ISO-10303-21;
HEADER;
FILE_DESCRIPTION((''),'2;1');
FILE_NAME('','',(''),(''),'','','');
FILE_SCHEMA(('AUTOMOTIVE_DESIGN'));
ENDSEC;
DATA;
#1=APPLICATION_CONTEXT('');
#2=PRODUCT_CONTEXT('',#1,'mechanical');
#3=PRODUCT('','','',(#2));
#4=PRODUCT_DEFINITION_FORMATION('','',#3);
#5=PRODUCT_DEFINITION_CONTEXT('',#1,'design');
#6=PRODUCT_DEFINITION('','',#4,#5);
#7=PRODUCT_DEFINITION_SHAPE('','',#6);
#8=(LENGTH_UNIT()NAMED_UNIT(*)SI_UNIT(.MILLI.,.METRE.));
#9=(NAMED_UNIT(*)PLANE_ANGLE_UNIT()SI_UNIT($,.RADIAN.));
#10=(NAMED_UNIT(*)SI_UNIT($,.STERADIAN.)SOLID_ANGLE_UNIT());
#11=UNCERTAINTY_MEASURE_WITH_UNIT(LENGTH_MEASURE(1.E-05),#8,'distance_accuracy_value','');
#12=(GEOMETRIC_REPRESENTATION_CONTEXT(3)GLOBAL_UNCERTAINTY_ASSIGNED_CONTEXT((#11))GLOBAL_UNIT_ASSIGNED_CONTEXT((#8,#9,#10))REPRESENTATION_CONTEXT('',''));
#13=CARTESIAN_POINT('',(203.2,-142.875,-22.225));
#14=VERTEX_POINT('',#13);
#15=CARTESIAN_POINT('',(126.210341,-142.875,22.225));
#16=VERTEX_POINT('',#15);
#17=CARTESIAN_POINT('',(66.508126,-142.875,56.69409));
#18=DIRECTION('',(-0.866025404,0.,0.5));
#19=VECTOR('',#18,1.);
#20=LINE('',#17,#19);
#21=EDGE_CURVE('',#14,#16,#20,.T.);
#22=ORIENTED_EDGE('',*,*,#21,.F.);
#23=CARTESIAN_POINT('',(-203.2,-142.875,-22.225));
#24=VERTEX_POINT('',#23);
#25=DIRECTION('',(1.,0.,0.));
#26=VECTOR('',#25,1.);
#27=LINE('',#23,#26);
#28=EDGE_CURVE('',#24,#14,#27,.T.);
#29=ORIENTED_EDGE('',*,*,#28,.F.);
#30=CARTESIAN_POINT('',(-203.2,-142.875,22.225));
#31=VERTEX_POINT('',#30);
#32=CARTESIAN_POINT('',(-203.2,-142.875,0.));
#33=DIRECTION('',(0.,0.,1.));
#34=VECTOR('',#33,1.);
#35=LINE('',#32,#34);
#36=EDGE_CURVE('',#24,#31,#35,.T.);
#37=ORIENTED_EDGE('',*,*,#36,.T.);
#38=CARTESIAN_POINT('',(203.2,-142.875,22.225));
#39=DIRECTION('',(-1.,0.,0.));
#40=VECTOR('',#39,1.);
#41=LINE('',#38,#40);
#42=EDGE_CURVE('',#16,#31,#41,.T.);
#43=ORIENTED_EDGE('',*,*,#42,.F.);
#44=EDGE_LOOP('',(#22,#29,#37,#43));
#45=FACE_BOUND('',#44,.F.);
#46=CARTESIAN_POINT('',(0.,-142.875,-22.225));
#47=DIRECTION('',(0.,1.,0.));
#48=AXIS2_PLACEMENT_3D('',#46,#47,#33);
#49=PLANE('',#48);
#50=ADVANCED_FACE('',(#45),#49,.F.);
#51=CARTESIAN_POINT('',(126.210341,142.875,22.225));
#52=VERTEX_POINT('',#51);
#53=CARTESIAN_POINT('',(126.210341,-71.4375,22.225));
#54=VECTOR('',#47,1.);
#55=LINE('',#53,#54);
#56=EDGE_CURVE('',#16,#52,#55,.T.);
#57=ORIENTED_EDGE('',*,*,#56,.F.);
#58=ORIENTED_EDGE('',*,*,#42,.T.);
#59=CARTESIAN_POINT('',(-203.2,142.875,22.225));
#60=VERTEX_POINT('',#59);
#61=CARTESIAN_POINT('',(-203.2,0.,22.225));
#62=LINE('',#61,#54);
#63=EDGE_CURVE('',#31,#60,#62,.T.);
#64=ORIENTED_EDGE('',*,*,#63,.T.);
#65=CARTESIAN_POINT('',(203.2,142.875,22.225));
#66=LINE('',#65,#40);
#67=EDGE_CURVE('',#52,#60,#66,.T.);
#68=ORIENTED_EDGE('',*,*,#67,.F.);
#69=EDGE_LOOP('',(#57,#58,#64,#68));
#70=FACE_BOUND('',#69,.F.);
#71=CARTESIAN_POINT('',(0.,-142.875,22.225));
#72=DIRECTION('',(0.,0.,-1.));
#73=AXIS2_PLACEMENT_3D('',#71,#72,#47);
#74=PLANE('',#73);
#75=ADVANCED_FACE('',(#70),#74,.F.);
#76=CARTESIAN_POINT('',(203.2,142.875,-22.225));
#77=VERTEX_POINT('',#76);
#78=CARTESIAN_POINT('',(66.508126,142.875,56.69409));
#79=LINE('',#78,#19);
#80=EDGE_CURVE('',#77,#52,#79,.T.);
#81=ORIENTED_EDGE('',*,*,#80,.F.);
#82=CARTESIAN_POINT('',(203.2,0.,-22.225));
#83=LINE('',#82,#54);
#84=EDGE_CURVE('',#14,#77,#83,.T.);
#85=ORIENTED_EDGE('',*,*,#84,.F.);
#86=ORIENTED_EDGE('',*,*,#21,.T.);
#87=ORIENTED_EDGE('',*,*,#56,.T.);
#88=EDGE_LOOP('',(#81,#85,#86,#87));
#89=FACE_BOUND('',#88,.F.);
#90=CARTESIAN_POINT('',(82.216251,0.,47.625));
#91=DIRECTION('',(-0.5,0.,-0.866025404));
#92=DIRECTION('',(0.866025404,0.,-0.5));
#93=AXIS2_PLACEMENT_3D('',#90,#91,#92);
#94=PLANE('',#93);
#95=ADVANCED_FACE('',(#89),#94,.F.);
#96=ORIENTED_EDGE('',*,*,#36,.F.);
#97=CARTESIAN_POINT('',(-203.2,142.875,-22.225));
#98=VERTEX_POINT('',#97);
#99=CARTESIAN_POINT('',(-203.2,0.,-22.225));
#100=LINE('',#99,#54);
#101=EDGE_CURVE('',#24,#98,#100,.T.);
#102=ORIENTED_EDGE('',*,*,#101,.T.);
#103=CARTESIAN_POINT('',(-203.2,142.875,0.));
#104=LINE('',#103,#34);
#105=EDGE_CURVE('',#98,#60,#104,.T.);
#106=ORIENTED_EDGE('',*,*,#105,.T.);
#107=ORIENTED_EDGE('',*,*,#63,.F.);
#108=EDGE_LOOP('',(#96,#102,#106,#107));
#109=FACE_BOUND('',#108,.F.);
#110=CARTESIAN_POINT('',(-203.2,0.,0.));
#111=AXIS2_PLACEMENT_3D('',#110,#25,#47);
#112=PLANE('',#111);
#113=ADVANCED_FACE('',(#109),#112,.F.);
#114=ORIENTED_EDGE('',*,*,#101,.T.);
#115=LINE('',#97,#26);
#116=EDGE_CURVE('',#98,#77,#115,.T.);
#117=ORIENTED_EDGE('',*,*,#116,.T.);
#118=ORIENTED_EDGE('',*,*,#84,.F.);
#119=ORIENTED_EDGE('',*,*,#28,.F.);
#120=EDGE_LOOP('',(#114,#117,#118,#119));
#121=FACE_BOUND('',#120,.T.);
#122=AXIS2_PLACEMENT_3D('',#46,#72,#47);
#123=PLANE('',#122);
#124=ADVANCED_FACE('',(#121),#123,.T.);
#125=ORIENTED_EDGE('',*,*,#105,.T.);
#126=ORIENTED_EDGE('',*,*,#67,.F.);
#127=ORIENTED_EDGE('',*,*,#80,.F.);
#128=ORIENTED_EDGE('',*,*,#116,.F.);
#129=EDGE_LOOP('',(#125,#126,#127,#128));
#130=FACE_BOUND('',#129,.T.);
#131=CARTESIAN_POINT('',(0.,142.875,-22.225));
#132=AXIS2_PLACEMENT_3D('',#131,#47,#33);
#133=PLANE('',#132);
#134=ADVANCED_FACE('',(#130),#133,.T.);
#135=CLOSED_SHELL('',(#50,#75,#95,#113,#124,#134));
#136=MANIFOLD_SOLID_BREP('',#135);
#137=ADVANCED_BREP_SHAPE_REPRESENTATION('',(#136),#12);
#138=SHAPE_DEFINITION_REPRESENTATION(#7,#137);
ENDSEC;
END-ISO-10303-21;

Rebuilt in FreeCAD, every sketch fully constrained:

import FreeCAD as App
import Part
import Sketcher

V = App.Vector
Q = App.Units.Quantity


def add_polygon(sketch, points):
    """Adds a closed chain of lines whose ends are joined by coincident constraints."""
    first, n = sketch.GeometryCount, len(points)
    for a, b in zip(points, points[1:] + points[:1]):
        sketch.addGeometry(Part.LineSegment(App.Vector(*a, 0), App.Vector(*b, 0)), False)
    for i in range(n):
        sketch.addConstraint(Sketcher.Constraint("Coincident", first + i, 2, first + (i + 1) % n, 1))

doc = App.newDocument("Part")
params = doc.addObject("Spreadsheet::Sheet", "Params")
for row, (alias, value) in enumerate([
    ("sketch1_width", "11.25 in"),
    ("sketch1_height", "1.75 in"),
    ("pad1_length", "16 in"),
    ("pocket1_length", "16 in"),
], start=1):
    params.set(f"A{row}", alias)
    params.set(f"B{row}", "=" + value)
    params.setAlias(f"B{row}", alias)

body = doc.addObject("PartDesign::Body", "Body")

# Sketch on YZ plane
sketch1 = body.newObject("Sketcher::SketchObject", "Sketch")
sketch1.AttachmentSupport = (doc.getObject("YZ_Plane"), [""])
sketch1.MapMode = "FlatFace"
add_polygon(sketch1, [(-143, 22), (-143, -22), (143, -22), (143, 22)])  # lines 0-3
sketch1.addConstraint([
    Sketcher.Constraint("Vertical", 0),
    Sketcher.Constraint("Horizontal", 1),
    Sketcher.Constraint("Vertical", 2),
    Sketcher.Constraint("Horizontal", 3),
    Sketcher.Constraint("Symmetric", 0, 2, 2, 2, -1, 1),
    Sketcher.Constraint("DistanceX", 1, 1, 1, 2, Q("11.25 in")),
    Sketcher.Constraint("DistanceY", 0, 2, 0, 1, Q("1.75 in")),
])
sketch1.setExpression("Constraints[9]", "Params.sketch1_width")
sketch1.setExpression("Constraints[10]", "Params.sketch1_height")
pad1 = body.newObject("PartDesign::Pad", "Pad")
pad1.Profile = sketch1
pad1.setExpression("Length", "Params.pad1_length")
pad1.Midplane = True

# Sketch on XZ plane
sketch2 = body.newObject("Sketcher::SketchObject", "Sketch001")
sketch2.AttachmentSupport = (doc.getObject("XZ_Plane"), [""])
sketch2.MapMode = "FlatFace"
add_polygon(sketch2, [(229, -37), (229, 48), (82, 48)])  # lines 0-2
sketch2.addConstraint([
    Sketcher.Constraint("Vertical", 0),
    Sketcher.Constraint("Horizontal", 1),
    Sketcher.Constraint("DistanceX", -1, 1, 0, 2, Q("9 in")),
    Sketcher.Constraint("Angle", 2, Q("-30 deg")),
    Sketcher.Constraint("DistanceY", -1, 1, 0, 2, Q("1.875 in")),
    Sketcher.Constraint("DistanceX", 1, 2, 1, 1, 146.383749),
])
pocket1 = body.newObject("PartDesign::Pocket", "Pocket")
pocket1.Profile = sketch2
pocket1.setExpression("Length", "Params.pocket1_length")
pocket1.Midplane = True

doc.recompute()
